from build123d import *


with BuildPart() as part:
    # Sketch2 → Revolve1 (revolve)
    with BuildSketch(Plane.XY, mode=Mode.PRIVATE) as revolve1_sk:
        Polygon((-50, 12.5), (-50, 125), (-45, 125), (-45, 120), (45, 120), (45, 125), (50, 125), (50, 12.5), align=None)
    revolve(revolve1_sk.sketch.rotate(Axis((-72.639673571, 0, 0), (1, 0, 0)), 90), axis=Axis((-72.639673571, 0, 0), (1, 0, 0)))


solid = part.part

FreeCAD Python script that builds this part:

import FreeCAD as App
import Part
import Sketcher
from FreeCAD import Vector

doc = App.newDocument("Part")
params = doc.addObject("Spreadsheet::Sheet", "Params")
for row, (alias, value) in enumerate([
    ("sketch1_width", "100 mm"),
    ("sketch1_width2", "5 mm"),
    ("sketch1_height", "112.5 mm"),
    ("revolution_angle", "360 deg"),
], start=1):
    params.set(f"A{row}", alias)
    params.set(f"B{row}", "=" + value)
    params.setAlias(f"B{row}", alias)

body = doc.addObject("PartDesign::Body", "Body")

# Sketch on XY plane
sketch1 = doc.addObject("Sketcher::SketchObject", "Sketch")
body.addObject(sketch1)
sketch1.AttachmentSupport = (doc.XY_Plane, [""])
sketch1.MapMode = "FlatFace"
sketch1.addGeometry([
    Part.LineSegment(Vector(-50, 125, 0), Vector(-50, 12, 0)),  # 0
    Part.LineSegment(Vector(-50, 12, 0), Vector(50, 12, 0)),  # 1
    Part.LineSegment(Vector(50, 12, 0), Vector(50, 125, 0)),  # 2
    Part.LineSegment(Vector(50, 125, 0), Vector(45, 125, 0)),  # 3
    Part.LineSegment(Vector(45, 125, 0), Vector(45, 120, 0)),  # 4
    Part.LineSegment(Vector(45, 120, 0), Vector(-45, 120, 0)),  # 5
    Part.LineSegment(Vector(-45, 120, 0), Vector(-45, 125, 0)),  # 6
    Part.LineSegment(Vector(-45, 125, 0), Vector(-50, 125, 0)),  # 7
], False)
sketch1.addConstraint([
    Sketcher.Constraint("Coincident", 0, 2, 1, 1),
    Sketcher.Constraint("Coincident", 1, 2, 2, 1),
    Sketcher.Constraint("Coincident", 2, 2, 3, 1),
    Sketcher.Constraint("Coincident", 3, 2, 4, 1),
    Sketcher.Constraint("Coincident", 4, 2, 5, 1),
    Sketcher.Constraint("Coincident", 5, 2, 6, 1),
    Sketcher.Constraint("Coincident", 6, 2, 7, 1),
    Sketcher.Constraint("Coincident", 7, 2, 0, 1),
    Sketcher.Constraint("Vertical", 0),
    Sketcher.Constraint("Horizontal", 1),
    Sketcher.Constraint("Vertical", 2),
    Sketcher.Constraint("Horizontal", 3),
    Sketcher.Constraint("Vertical", 4),
    Sketcher.Constraint("Horizontal", 5),
    Sketcher.Constraint("Vertical", 6),
    Sketcher.Constraint("Horizontal", 7),
    Sketcher.Constraint("Symmetric", 3, 2, 6, 2, -2),
    Sketcher.Constraint("Equal", 3, 7),
    Sketcher.Constraint("Equal", 7, 4),
    Sketcher.Constraint("DistanceX", 1, 1, 1, 2, 100.0),
    Sketcher.Constraint("DistanceX", 3, 2, 3, 1, 5.0),
    Sketcher.Constraint("DistanceY", 0, 2, 0, 1, 112.5),
    Sketcher.Constraint("DistanceY", -1, 1, 2, 2, 125.0),
])
sketch1.setExpression("Constraints[19]", "Params.sketch1_width")
sketch1.setExpression("Constraints[20]", "Params.sketch1_width2")
sketch1.setExpression("Constraints[21]", "Params.sketch1_height")
revolution = doc.addObject("PartDesign::Revolution", "Revolution")
body.addObject(revolution)
revolution.Profile = sketch1
revolution.ReferenceAxis = (sketch1, ["H_Axis"])
revolution.setExpression("Angle", "Params.revolution_angle")

doc.recompute()
